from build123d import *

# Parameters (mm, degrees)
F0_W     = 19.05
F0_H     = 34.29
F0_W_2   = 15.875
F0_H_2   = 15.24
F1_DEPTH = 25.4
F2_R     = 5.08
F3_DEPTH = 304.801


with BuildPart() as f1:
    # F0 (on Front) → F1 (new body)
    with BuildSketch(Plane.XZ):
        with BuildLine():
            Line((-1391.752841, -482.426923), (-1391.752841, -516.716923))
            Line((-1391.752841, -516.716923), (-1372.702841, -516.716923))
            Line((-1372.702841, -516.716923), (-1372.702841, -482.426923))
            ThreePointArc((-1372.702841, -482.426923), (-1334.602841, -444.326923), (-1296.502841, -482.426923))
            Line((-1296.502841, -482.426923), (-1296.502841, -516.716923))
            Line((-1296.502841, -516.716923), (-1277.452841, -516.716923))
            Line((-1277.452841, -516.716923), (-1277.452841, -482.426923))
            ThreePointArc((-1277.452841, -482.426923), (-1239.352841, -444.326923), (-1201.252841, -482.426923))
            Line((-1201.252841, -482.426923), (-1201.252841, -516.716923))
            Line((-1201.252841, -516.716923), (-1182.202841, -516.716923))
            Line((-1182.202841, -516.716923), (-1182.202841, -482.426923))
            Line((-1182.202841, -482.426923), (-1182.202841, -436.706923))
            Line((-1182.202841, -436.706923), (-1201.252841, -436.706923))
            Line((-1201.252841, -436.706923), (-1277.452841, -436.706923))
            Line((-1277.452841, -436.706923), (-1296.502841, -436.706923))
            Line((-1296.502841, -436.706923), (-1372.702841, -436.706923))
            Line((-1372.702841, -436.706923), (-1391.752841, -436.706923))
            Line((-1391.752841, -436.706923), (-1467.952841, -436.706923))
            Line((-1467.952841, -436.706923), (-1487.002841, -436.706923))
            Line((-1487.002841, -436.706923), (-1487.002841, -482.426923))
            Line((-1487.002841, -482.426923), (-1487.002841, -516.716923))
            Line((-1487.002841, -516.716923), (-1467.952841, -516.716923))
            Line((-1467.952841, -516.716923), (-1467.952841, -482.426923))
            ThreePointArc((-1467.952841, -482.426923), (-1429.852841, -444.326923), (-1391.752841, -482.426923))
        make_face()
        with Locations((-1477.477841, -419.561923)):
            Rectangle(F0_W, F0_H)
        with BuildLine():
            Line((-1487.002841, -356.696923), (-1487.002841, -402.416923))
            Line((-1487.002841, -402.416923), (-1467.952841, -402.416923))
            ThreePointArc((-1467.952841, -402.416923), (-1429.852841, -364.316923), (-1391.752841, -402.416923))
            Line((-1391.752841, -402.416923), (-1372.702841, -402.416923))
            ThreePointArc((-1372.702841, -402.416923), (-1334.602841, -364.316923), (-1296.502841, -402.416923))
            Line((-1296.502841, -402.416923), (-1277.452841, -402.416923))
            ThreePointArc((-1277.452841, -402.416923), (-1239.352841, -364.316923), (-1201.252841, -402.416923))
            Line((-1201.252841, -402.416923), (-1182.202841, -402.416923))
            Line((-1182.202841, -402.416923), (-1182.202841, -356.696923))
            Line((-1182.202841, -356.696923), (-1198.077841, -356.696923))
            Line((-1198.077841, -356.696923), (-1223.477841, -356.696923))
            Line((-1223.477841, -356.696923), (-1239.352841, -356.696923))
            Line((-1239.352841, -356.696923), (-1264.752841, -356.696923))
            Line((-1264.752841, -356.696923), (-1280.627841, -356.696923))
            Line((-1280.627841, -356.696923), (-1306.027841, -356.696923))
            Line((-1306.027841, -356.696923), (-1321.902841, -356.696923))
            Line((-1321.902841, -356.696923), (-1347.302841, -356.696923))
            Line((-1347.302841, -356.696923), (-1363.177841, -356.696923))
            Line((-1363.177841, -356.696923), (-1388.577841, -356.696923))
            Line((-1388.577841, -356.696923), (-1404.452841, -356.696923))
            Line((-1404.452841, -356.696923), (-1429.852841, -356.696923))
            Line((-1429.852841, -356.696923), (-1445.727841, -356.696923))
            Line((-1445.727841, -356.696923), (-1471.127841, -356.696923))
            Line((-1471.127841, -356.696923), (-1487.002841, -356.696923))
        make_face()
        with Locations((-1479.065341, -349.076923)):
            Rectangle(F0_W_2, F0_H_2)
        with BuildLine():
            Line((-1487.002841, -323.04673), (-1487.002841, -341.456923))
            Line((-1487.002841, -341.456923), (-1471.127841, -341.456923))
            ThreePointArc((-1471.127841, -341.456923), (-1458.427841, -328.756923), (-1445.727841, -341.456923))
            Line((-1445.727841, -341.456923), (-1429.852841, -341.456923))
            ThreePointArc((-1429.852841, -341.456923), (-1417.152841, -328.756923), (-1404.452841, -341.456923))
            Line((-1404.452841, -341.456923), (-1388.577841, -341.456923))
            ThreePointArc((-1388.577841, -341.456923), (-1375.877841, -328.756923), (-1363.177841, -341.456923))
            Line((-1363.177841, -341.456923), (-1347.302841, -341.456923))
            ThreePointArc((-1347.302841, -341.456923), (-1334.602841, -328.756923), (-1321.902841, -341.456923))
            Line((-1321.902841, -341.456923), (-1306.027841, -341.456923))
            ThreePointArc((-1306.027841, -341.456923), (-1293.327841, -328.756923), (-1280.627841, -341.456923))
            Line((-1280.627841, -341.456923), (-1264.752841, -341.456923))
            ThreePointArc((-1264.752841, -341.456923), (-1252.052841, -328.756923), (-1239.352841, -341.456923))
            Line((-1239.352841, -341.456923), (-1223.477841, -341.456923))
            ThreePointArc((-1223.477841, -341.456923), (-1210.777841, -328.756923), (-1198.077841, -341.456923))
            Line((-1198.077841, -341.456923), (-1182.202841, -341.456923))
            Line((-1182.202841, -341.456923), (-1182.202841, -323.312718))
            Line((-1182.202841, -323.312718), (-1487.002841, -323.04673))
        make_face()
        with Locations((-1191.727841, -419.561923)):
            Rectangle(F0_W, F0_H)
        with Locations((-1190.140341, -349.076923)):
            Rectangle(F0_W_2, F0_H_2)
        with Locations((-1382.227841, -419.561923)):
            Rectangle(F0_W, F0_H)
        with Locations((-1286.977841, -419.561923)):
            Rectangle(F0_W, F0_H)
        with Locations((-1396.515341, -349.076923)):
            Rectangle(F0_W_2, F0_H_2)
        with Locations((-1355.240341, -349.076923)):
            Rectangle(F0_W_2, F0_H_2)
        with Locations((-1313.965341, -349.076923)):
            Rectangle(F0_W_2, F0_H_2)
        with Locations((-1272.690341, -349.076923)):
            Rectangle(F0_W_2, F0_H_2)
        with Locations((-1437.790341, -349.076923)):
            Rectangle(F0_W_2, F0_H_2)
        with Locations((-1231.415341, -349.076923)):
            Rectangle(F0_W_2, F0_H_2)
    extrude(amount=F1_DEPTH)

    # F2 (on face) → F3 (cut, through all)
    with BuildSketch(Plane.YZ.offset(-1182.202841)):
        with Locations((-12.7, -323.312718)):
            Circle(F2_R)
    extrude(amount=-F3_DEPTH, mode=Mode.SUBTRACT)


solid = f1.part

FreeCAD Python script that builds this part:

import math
import FreeCAD as App
import Part
import Sketcher
Q = App.Units.Quantity

doc = App.newDocument("Part")
body = doc.addObject("PartDesign::Body", "Body")

sketch1 = body.newObject("Sketcher::SketchObject", "Sketch")
sketch1.AttachmentSupport = (doc.getObject("XZ_Plane"), [""])
sketch1.MapMode = "FlatFace"
sketch1.addGeometry([
    Part.LineSegment(App.Vector(-1392, -482, 0), App.Vector(-1392, -517, 0)),
    Part.LineSegment(App.Vector(-1392, -517, 0), App.Vector(-1373, -517, 0)),
    Part.LineSegment(App.Vector(-1373, -517, 0), App.Vector(-1373, -482, 0)),
    Part.ArcOfCircle(Part.Circle(App.Vector(-1335, -482, 0), App.Vector(0, 0, 1), 38), math.radians(0), math.radians(180)),
    Part.LineSegment(App.Vector(-1297, -482, 0), App.Vector(-1297, -517, 0)),
    Part.LineSegment(App.Vector(-1297, -517, 0), App.Vector(-1277, -517, 0)),
    Part.LineSegment(App.Vector(-1277, -517, 0), App.Vector(-1277, -482, 0)),
    Part.ArcOfCircle(Part.Circle(App.Vector(-1239, -482, 0), App.Vector(0, 0, 1), 38), math.radians(0), math.radians(180)),
    Part.LineSegment(App.Vector(-1201, -482, 0), App.Vector(-1201, -517, 0)),
    Part.LineSegment(App.Vector(-1201, -517, 0), App.Vector(-1182, -517, 0)),
    Part.LineSegment(App.Vector(-1182, -517, 0), App.Vector(-1182, -323, 0)),
    Part.LineSegment(App.Vector(-1182, -323, 0), App.Vector(-1487, -323, 0)),
    Part.LineSegment(App.Vector(-1487, -323, 0), App.Vector(-1487, -517, 0)),
    Part.LineSegment(App.Vector(-1487, -517, 0), App.Vector(-1468, -517, 0)),
    Part.LineSegment(App.Vector(-1468, -517, 0), App.Vector(-1468, -482, 0)),
    Part.ArcOfCircle(Part.Circle(App.Vector(-1430, -482, 0), App.Vector(0, 0, 1), 38), math.radians(0), math.radians(180)),
    Part.LineSegment(App.Vector(-1198, -357, 0), App.Vector(-1223, -357, 0)),
    Part.LineSegment(App.Vector(-1223, -357, 0), App.Vector(-1223, -341, 0)),
    Part.ArcOfCircle(Part.Circle(App.Vector(-1211, -341, 0), App.Vector(0, 0, 1), 13), math.radians(0), math.radians(180)),
    Part.LineSegment(App.Vector(-1198, -341, 0), App.Vector(-1198, -357, 0)),
    Part.LineSegment(App.Vector(-1239, -357, 0), App.Vector(-1265, -357, 0)),
    Part.LineSegment(App.Vector(-1265, -357, 0), App.Vector(-1265, -341, 0)),
    Part.ArcOfCircle(Part.Circle(App.Vector(-1252, -341, 0), App.Vector(0, 0, 1), 13), math.radians(0), math.radians(180)),
    Part.LineSegment(App.Vector(-1239, -341, 0), App.Vector(-1239, -357, 0)),
    Part.LineSegment(App.Vector(-1281, -357, 0), App.Vector(-1306, -357, 0)),
    Part.LineSegment(App.Vector(-1306, -357, 0), App.Vector(-1306, -341, 0)),
    Part.ArcOfCircle(Part.Circle(App.Vector(-1293, -341, 0), App.Vector(0, 0, 1), 13), math.radians(0), math.radians(180)),
    Part.LineSegment(App.Vector(-1281, -341, 0), App.Vector(-1281, -357, 0)),
    Part.LineSegment(App.Vector(-1322, -357, 0), App.Vector(-1347, -357, 0)),
    Part.LineSegment(App.Vector(-1347, -357, 0), App.Vector(-1347, -341, 0)),
    Part.ArcOfCircle(Part.Circle(App.Vector(-1335, -341, 0), App.Vector(0, 0, 1), 13), math.radians(0), math.radians(180)),
    Part.LineSegment(App.Vector(-1322, -341, 0), App.Vector(-1322, -357, 0)),
    Part.LineSegment(App.Vector(-1363, -357, 0), App.Vector(-1389, -357, 0)),
    Part.LineSegment(App.Vector(-1389, -357, 0), App.Vector(-1389, -341, 0)),
    Part.ArcOfCircle(Part.Circle(App.Vector(-1376, -341, 0), App.Vector(0, 0, 1), 13), math.radians(0), math.radians(180)),
    Part.LineSegment(App.Vector(-1363, -341, 0), App.Vector(-1363, -357, 0)),
    Part.LineSegment(App.Vector(-1404, -357, 0), App.Vector(-1430, -357, 0)),
    Part.LineSegment(App.Vector(-1430, -357, 0), App.Vector(-1430, -341, 0)),
    Part.ArcOfCircle(Part.Circle(App.Vector(-1417, -341, 0), App.Vector(0, 0, 1), 13), math.radians(0), math.radians(180)),
    Part.LineSegment(App.Vector(-1404, -341, 0), App.Vector(-1404, -357, 0)),
    Part.LineSegment(App.Vector(-1446, -357, 0), App.Vector(-1471, -357, 0)),
    Part.LineSegment(App.Vector(-1471, -357, 0), App.Vector(-1471, -341, 0)),
    Part.ArcOfCircle(Part.Circle(App.Vector(-1458, -341, 0), App.Vector(0, 0, 1), 13), math.radians(0), math.radians(180)),
    Part.LineSegment(App.Vector(-1446, -341, 0), App.Vector(-1446, -357, 0)),
    Part.LineSegment(App.Vector(-1201, -437, 0), App.Vector(-1277, -437, 0)),
    Part.LineSegment(App.Vector(-1277, -437, 0), App.Vector(-1277, -402, 0)),
    Part.ArcOfCircle(Part.Circle(App.Vector(-1239, -402, 0), App.Vector(0, 0, 1), 38), math.radians(0), math.radians(180)),
    Part.LineSegment(App.Vector(-1201, -402, 0), App.Vector(-1201, -437, 0)),
    Part.LineSegment(App.Vector(-1297, -437, 0), App.Vector(-1373, -437, 0)),
    Part.LineSegment(App.Vector(-1373, -437, 0), App.Vector(-1373, -402, 0)),
    Part.ArcOfCircle(Part.Circle(App.Vector(-1335, -402, 0), App.Vector(0, 0, 1), 38), math.radians(0), math.radians(180)),
    Part.LineSegment(App.Vector(-1297, -402, 0), App.Vector(-1297, -437, 0)),
    Part.LineSegment(App.Vector(-1392, -437, 0), App.Vector(-1468, -437, 0)),
    Part.LineSegment(App.Vector(-1468, -437, 0), App.Vector(-1468, -402, 0)),
    Part.ArcOfCircle(Part.Circle(App.Vector(-1430, -402, 0), App.Vector(0, 0, 1), 38), math.radians(0), math.radians(180)),
    Part.LineSegment(App.Vector(-1392, -402, 0), App.Vector(-1392, -437, 0)),
], False)
sketch1.addConstraint([
    Sketcher.Constraint("Coincident", 0, 2, 1, 1),
    Sketcher.Constraint("Coincident", 1, 2, 2, 1),
    Sketcher.Constraint("Tangent", 2, 2, 3, 2),
    Sketcher.Constraint("Tangent", 3, 1, 4, 1),
    Sketcher.Constraint("Coincident", 4, 2, 5, 1),
    Sketcher.Constraint("Coincident", 5, 2, 6, 1),
    Sketcher.Constraint("Tangent", 6, 2, 7, 2),
    Sketcher.Constraint("Tangent", 7, 1, 8, 1),
    Sketcher.Constraint("Coincident", 8, 2, 9, 1),
    Sketcher.Constraint("Coincident", 9, 2, 10, 1),
    Sketcher.Constraint("Coincident", 10, 2, 11, 1),
    Sketcher.Constraint("Coincident", 11, 2, 12, 1),
    Sketcher.Constraint("Coincident", 12, 2, 13, 1),
    Sketcher.Constraint("Coincident", 13, 2, 14, 1),
    Sketcher.Constraint("Tangent", 14, 2, 15, 2),
    Sketcher.Constraint("Tangent", 15, 1, 0, 1),
    Sketcher.Constraint("Coincident", 16, 2, 17, 1),
    Sketcher.Constraint("Tangent", 17, 2, 18, 2),
    Sketcher.Constraint("Tangent", 18, 1, 19, 1),
    Sketcher.Constraint("Coincident", 19, 2, 16, 1),
    Sketcher.Constraint("Coincident", 20, 2, 21, 1),
    Sketcher.Constraint("Tangent", 21, 2, 22, 2),
    Sketcher.Constraint("Tangent", 22, 1, 23, 1),
    Sketcher.Constraint("Coincident", 23, 2, 20, 1),
    Sketcher.Constraint("Coincident", 24, 2, 25, 1),
    Sketcher.Constraint("Tangent", 25, 2, 26, 2),
    Sketcher.Constraint("Tangent", 26, 1, 27, 1),
    Sketcher.Constraint("Coincident", 27, 2, 24, 1),
    Sketcher.Constraint("Coincident", 28, 2, 29, 1),
    Sketcher.Constraint("Tangent", 29, 2, 30, 2),
    Sketcher.Constraint("Tangent", 30, 1, 31, 1),
    Sketcher.Constraint("Coincident", 31, 2, 28, 1),
    Sketcher.Constraint("Coincident", 32, 2, 33, 1),
    Sketcher.Constraint("Tangent", 33, 2, 34, 2),
    Sketcher.Constraint("Tangent", 34, 1, 35, 1),
    Sketcher.Constraint("Coincident", 35, 2, 32, 1),
    Sketcher.Constraint("Coincident", 36, 2, 37, 1),
    Sketcher.Constraint("Tangent", 37, 2, 38, 2),
    Sketcher.Constraint("Tangent", 38, 1, 39, 1),
    Sketcher.Constraint("Coincident", 39, 2, 36, 1),
    Sketcher.Constraint("Coincident", 40, 2, 41, 1),
    Sketcher.Constraint("Tangent", 41, 2, 42, 2),
    Sketcher.Constraint("Tangent", 42, 1, 43, 1),
    Sketcher.Constraint("Coincident", 43, 2, 40, 1),
    Sketcher.Constraint("Coincident", 44, 2, 45, 1),
    Sketcher.Constraint("Tangent", 45, 2, 46, 2),
    Sketcher.Constraint("Tangent", 46, 1, 47, 1),
    Sketcher.Constraint("Coincident", 47, 2, 44, 1),
    Sketcher.Constraint("Coincident", 48, 2, 49, 1),
    Sketcher.Constraint("Tangent", 49, 2, 50, 2),
    Sketcher.Constraint("Tangent", 50, 1, 51, 1),
    Sketcher.Constraint("Coincident", 51, 2, 48, 1),
    Sketcher.Constraint("Coincident", 52, 2, 53, 1),
    Sketcher.Constraint("Tangent", 53, 2, 54, 2),
    Sketcher.Constraint("Tangent", 54, 1, 55, 1),
    Sketcher.Constraint("Coincident", 55, 2, 52, 1),
    Sketcher.Constraint("Vertical", 0),
    Sketcher.Constraint("Horizontal", 1),
    Sketcher.Constraint("Vertical", 2),
    Sketcher.Constraint("Vertical", 4),
    Sketcher.Constraint("Horizontal", 5),
    Sketcher.Constraint("Vertical", 6),
    Sketcher.Constraint("Vertical", 8),
    Sketcher.Constraint("Horizontal", 9),
    Sketcher.Constraint("Vertical", 10),
    Sketcher.Constraint("Vertical", 12),
    Sketcher.Constraint("Horizontal", 13),
    Sketcher.Constraint("Vertical", 14),
    Sketcher.Constraint("Horizontal", 16),
    Sketcher.Constraint("Vertical", 17),
    Sketcher.Constraint("Vertical", 19),
    Sketcher.Constraint("Horizontal", 20),
    Sketcher.Constraint("Vertical", 21),
    Sketcher.Constraint("Vertical", 23),
    Sketcher.Constraint("Horizontal", 24),
    Sketcher.Constraint("Vertical", 25),
    Sketcher.Constraint("Vertical", 27),
    Sketcher.Constraint("Horizontal", 28),
    Sketcher.Constraint("Vertical", 29),
    Sketcher.Constraint("Vertical", 31),
    Sketcher.Constraint("Horizontal", 32),
    Sketcher.Constraint("Vertical", 33),
    Sketcher.Constraint("Vertical", 35),
    Sketcher.Constraint("Horizontal", 36),
    Sketcher.Constraint("Vertical", 37),
    Sketcher.Constraint("Vertical", 39),
    Sketcher.Constraint("Horizontal", 40),
    Sketcher.Constraint("Vertical", 41),
    Sketcher.Constraint("Vertical", 43),
    Sketcher.Constraint("Horizontal", 44),
    Sketcher.Constraint("Vertical", 45),
    Sketcher.Constraint("Vertical", 47),
    Sketcher.Constraint("Horizontal", 48),
    Sketcher.Constraint("Vertical", 49),
    Sketcher.Constraint("Vertical", 51),
    Sketcher.Constraint("Horizontal", 52),
    Sketcher.Constraint("Vertical", 53),
    Sketcher.Constraint("Vertical", 55),
    Sketcher.Constraint("Equal", 3, 7),
    Sketcher.Constraint("Equal", 7, 15),
    Sketcher.Constraint("Equal", 18, 22),
    Sketcher.Constraint("Equal", 22, 26),
    Sketcher.Constraint("Equal", 26, 30),
    Sketcher.Constraint("Equal", 30, 34),
    Sketcher.Constraint("Equal", 34, 38),
    Sketcher.Constraint("Equal", 38, 42),
    Sketcher.Constraint("Equal", 15, 46),
    Sketcher.Constraint("Equal", 46, 50),
    Sketcher.Constraint("Equal", 50, 54),
    Sketcher.Constraint("Horizontal", 3, 3, 7, 3),
    Sketcher.Constraint("Horizontal", 7, 3, 15, 3),
    Sketcher.Constraint("Horizontal", 18, 3, 22, 3),
    Sketcher.Constraint("Horizontal", 22, 3, 26, 3),
    Sketcher.Constraint("Horizontal", 26, 3, 30, 3),
    Sketcher.Constraint("Horizontal", 30, 3, 34, 3),
    Sketcher.Constraint("Horizontal", 34, 3, 38, 3),
    Sketcher.Constraint("Horizontal", 38, 3, 42, 3),
    Sketcher.Constraint("Horizontal", 46, 3, 50, 3),
    Sketcher.Constraint("Horizontal", 50, 3, 54, 3),
    Sketcher.Constraint("Horizontal", 1, 2, 4, 2),
    Sketcher.Constraint("Horizontal", 5, 2, 8, 2),
    Sketcher.Constraint("Horizontal", 9, 2, 12, 2),
    Sketcher.Constraint("Horizontal", 19, 2, 20, 2),
    Sketcher.Constraint("Horizontal", 23, 2, 24, 2),
    Sketcher.Constraint("Horizontal", 27, 2, 28, 2),
    Sketcher.Constraint("Horizontal", 31, 2, 32, 2),
    Sketcher.Constraint("Horizontal", 35, 2, 36, 2),
    Sketcher.Constraint("Horizontal", 39, 2, 40, 2),
    Sketcher.Constraint("Horizontal", 47, 2, 48, 2),
    Sketcher.Constraint("Horizontal", 51, 2, 52, 2),
    Sketcher.Constraint("Vertical", 3, 3, 30, 3),
    Sketcher.Constraint("Vertical", 7, 3, 46, 3),
    Sketcher.Constraint("Vertical", 30, 3, 50, 3),
    Sketcher.Constraint("Vertical", 15, 3, 54, 3),
    Sketcher.Constraint("Vertical", 46, 3, 22, 1),
    Sketcher.Constraint("Vertical", 54, 3, 36, 2),
    Sketcher.Constraint("Equal", 1, 5),
    Sketcher.Constraint("Equal", 5, 9),
    Sketcher.Constraint("Equal", 9, 13),
    Sketcher.Constraint("Equal", 14, 45),
    Sketcher.Constraint("Radius", 3, Q("1.5 in")),
    Sketcher.Constraint("Radius", 18, Q("0.5 in")),
    Sketcher.Constraint("DistanceY", 17, 1, 17, 2, Q("0.6 in")),
    Sketcher.Constraint("DistanceX", 1, 1, 1, 2, Q("0.75 in")),
    Sketcher.Constraint("DistanceY", 0, 2, 0, 1, Q("1.35 in")),
    Sketcher.Constraint("Angle", 11, Q("179.95 deg")),
    Sketcher.Constraint("DistanceY", 10, 1, 10, 2, 193.404205),
    Sketcher.Constraint("DistanceX", 3, 3, -1, 1, 1334.602841),
    Sketcher.Constraint("DistanceX", 18, 3, -1, 1, 1210.777841),
    Sketcher.Constraint("DistanceX", 26, 3, -1, 1, 1293.327841),
    Sketcher.Constraint("DistanceX", 34, 3, -1, 1, 1375.877841),
    Sketcher.Constraint("DistanceX", 42, 3, -1, 1, 1458.427841),
    Sketcher.Constraint("DistanceY", 10, 2, -1, 1, 323.312718),
    Sketcher.Constraint("DistanceY", 18, 3, -1, 1, 341.456923),
    Sketcher.Constraint("DistanceY", 46, 3, -1, 1, 402.416923),
])
pad1 = body.newObject("PartDesign::Pad", "Pad")
pad1.Profile = sketch1
pad1.Length = Q("1 in")

sketch2 = body.newObject("Sketcher::SketchObject", "Sketch001")
sketch2.AttachmentSupport = (doc.getObject("YZ_Plane"), [""])
sketch2.MapMode = "FlatFace"
sketch2.AttachmentOffset = App.Placement(App.Vector(0, 0, -1182.202841), App.Rotation())
sketch2.addGeometry(Part.Circle(App.Vector(-13, -323, 0), App.Vector(0, 0, 1), 5), False)
sketch2.addConstraint([
    Sketcher.Constraint("Diameter", 0, Q("0.4 in")),
    Sketcher.Constraint("DistanceX", 0, 3, -1, 1, Q("0.5 in")),
    Sketcher.Constraint("DistanceY", 0, 3, -1, 1, 323.312718),
])
pocket1 = body.newObject("PartDesign::Pocket", "Pocket")
pocket1.Profile = sketch2
pocket1.Type = "ThroughAll"

doc.recompute()
